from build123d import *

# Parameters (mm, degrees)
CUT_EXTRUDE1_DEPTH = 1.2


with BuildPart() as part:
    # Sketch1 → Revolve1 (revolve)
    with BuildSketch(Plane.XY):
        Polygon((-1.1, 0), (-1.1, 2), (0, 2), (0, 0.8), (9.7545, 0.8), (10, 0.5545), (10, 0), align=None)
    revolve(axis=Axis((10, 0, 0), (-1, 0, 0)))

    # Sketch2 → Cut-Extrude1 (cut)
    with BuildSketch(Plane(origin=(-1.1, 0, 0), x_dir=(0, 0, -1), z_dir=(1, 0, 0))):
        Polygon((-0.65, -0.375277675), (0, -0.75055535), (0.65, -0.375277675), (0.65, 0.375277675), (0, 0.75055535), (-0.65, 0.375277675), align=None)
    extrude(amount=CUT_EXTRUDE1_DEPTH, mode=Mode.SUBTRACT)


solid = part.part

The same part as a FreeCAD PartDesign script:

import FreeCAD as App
import Part
import Sketcher
Q = App.Units.Quantity


def add_polygon(sketch, points):
    """Adds a closed chain of lines whose ends are joined by coincident constraints."""
    first, n = sketch.GeometryCount, len(points)
    for a, b in zip(points, points[1:] + points[:1]):
        sketch.addGeometry(Part.LineSegment(App.Vector(*a, 0), App.Vector(*b, 0)), False)
    for i in range(n):
        sketch.addConstraint(Sketcher.Constraint("Coincident", first + i, 2, first + (i + 1) % n, 1))

doc = App.newDocument("Part")
params = doc.addObject("Spreadsheet::Sheet", "Params")
for row, (alias, value) in enumerate([
    ("sketch1_height", "2 mm"),
    ("sketch1_width", "11.1 mm"),
    ("sketch1_width2", "1.1 mm"),
    ("sketch1_height2", "1.2 mm"),
    ("revolution_angle", "360 deg"),
    ("pocket1_length", "1.2 mm"),
], start=1):
    params.set(f"A{row}", alias)
    params.set(f"B{row}", "=" + value)
    params.setAlias(f"B{row}", alias)

body = doc.addObject("PartDesign::Body", "Body")

# Sketch on XY plane
sketch1 = doc.addObject("Sketcher::SketchObject", "Sketch")
body.addObject(sketch1)
sketch1.AttachmentSupport = (doc.XY_Plane, [""])
sketch1.MapMode = "FlatFace"
add_polygon(sketch1, [(-1.1, 2), (-1.1, 0), (10, 0), (10, 0.55), (9.75, 0.8), (0, 0.8), (0, 2)])  # lines 0-6
sketch1.addConstraint(Sketcher.Constraint("Vertical", 0))
sketch1.addConstraint(Sketcher.Constraint("Horizontal", 1))
sketch1.addConstraint(Sketcher.Constraint("Vertical", 2))
sketch1.addConstraint(Sketcher.Constraint("Horizontal", 4))
sketch1.addConstraint(Sketcher.Constraint("Vertical", 5))
sketch1.addConstraint(Sketcher.Constraint("Horizontal", 6))
sketch1.addConstraint(Sketcher.Constraint("PointOnObject", 0, 2, -1))
sketch1.addConstraint(Sketcher.Constraint("PointOnObject", 4, 2, -2))
sketch1.addConstraint(Sketcher.Constraint("DistanceY", 0, 2, 0, 1, Q("2 mm")))
sketch1.addConstraint(Sketcher.Constraint("Angle", 3, Q("135 deg")))
sketch1.addConstraint(Sketcher.Constraint("DistanceX", 1, 1, 1, 2, Q("11.1 mm")))
sketch1.addConstraint(Sketcher.Constraint("DistanceX", 6, 2, 6, 1, Q("1.1 mm")))
sketch1.addConstraint(Sketcher.Constraint("DistanceY", 5, 1, 5, 2, Q("1.2 mm")))
sketch1.addConstraint(Sketcher.Constraint("DistanceX", 4, 2, 4, 1, Q("9.7545 mm")))
sketch1.setExpression("Constraints[15]", "Params.sketch1_height")
sketch1.setExpression("Constraints[17]", "Params.sketch1_width")
sketch1.setExpression("Constraints[18]", "Params.sketch1_width2")
sketch1.setExpression("Constraints[19]", "Params.sketch1_height2")
revolution = doc.addObject("PartDesign::Revolution", "Revolution")
body.addObject(revolution)
revolution.Profile = sketch1
revolution.ReferenceAxis = (sketch1, ["H_Axis"])
revolution.setExpression("Angle", "Params.revolution_angle")

# Sketch on YZ plane
sketch2 = doc.addObject("Sketcher::SketchObject", "Sketch001")
body.addObject(sketch2)
sketch2.AttachmentSupport = (doc.YZ_Plane, [""])
sketch2.MapMode = "FlatFace"
sketch2.AttachmentOffset = App.Placement(App.Vector(0, 0, -1.1), App.Rotation())
add_polygon(sketch2, [(-0.4, 0.7), (-0.8, 0), (-0.4, -0.7), (0.4, -0.7), (0.8, 0), (0.4, 0.7)])  # lines 0-5
sketch2.addConstraint(Sketcher.Constraint("Horizontal", 2))
sketch2.addConstraint(Sketcher.Constraint("Horizontal", 5))
sketch2.addConstraint(Sketcher.Constraint("Symmetric", 0, 2, 3, 2, -1, 1))
sketch2.addConstraint(Sketcher.Constraint("Symmetric", 1, 2, 4, 2, -1, 1))
sketch2.addConstraint(Sketcher.Constraint("PointOnObject", 0, 2, -1))
sketch2.addConstraint(Sketcher.Constraint("Parallel", 0, 3))
sketch2.addConstraint(Sketcher.Constraint("Vertical", 2, 2, 4, 2))
sketch2.addConstraint(Sketcher.Constraint("Angle", 0, Q("-120 deg")))
sketch2.addConstraint(Sketcher.Constraint("DistanceY", 2, 2, 4, 2, Q("1.3 mm")))
sketch2.addConstraint(Sketcher.Constraint("DistanceX", 2, 1, 2, 2, Q("0.750555 mm")))
pocket1 = doc.addObject("PartDesign::Pocket", "Pocket")
body.addObject(pocket1)
pocket1.Profile = sketch2
pocket1.setExpression("Length", "Params.pocket1_length")
pocket1.Reversed = True

doc.recompute()
